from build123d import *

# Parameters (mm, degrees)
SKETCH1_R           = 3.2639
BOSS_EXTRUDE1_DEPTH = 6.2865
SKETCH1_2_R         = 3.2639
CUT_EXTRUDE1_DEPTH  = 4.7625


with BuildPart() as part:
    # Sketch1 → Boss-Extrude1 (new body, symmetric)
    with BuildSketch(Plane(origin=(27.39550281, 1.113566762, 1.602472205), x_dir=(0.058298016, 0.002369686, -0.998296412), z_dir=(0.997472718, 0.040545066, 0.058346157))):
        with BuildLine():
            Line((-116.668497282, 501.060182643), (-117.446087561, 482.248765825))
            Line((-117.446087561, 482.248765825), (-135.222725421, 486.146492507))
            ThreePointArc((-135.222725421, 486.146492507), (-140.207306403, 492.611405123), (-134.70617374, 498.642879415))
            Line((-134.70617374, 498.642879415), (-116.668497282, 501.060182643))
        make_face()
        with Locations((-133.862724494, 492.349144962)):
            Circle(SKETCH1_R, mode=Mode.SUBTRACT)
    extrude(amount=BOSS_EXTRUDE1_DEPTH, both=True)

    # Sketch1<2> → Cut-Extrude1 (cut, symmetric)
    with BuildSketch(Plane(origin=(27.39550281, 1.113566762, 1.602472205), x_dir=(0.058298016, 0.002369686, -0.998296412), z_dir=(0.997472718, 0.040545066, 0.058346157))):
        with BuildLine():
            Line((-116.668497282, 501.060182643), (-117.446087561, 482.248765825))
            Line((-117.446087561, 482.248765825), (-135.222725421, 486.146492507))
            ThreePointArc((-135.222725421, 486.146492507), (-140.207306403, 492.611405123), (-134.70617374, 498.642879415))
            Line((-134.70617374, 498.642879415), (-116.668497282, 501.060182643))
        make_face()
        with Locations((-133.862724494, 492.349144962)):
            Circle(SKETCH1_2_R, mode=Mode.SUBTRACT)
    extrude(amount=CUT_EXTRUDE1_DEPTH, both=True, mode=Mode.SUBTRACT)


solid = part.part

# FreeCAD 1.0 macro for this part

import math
import FreeCAD as App
import Part
import Sketcher
from FreeCAD import Vector
Q = App.Units.Quantity

doc = App.newDocument("Part")
body = doc.addObject("PartDesign::Body", "Body")
body.AllowCompound = True

sketch1 = body.newObject("Sketcher::SketchObject", "Sketch")
sketch1.Placement = App.Placement(Vector(27.395503, 1.113567, 1.602472), App.Rotation(Vector(0.058298016, 0.002369686, -0.998296412), Vector(-0.040614256, 0.999174901, 0), Vector(0.997472718, 0.040545066, 0.058346157), "ZXY"))
sketch1.addGeometry([
    Part.LineSegment(Vector(-117.446088, 482.248766, 0), Vector(-116.668497, 501.060183, 0)),
    Part.LineSegment(Vector(-116.668497, 501.060183, 0), Vector(-134.706174, 498.642879, 0)),
    Part.ArcOfCircle(Part.Circle(Vector(-133.862725, 492.349145, 0), Vector(0, 0, 1), 6.35), math.radians(97.632964), math.radians(257.632964)),
    Part.LineSegment(Vector(-135.222725, 486.146492, 0), Vector(-117.446088, 482.248766, 0)),
    Part.Circle(Vector(-133.862725, 492.349145, 0), Vector(0, 0, 1), 3.2639),
], False)
sketch1.addConstraint([
    Sketcher.Constraint("Coincident", 0, 2, 1, 1),
    Sketcher.Constraint("Tangent", 1, 2, 2, 1),
    Sketcher.Constraint("Tangent", 2, 2, 3, 1),
    Sketcher.Constraint("Coincident", 3, 2, 0, 1),
    Sketcher.Constraint("Coincident", 4, 3, 2, 3),
    Sketcher.Constraint("Equal", 1, 3),
    Sketcher.Constraint("Radius", 2, Q("0.25 in")),
    Sketcher.Constraint("Diameter", 4, Q("0.257 in")),
    Sketcher.Constraint("DistanceX", 2, 2, 2, 3, 1.360001),
    Sketcher.Constraint("Distance", 0, 18.827481),
    Sketcher.Constraint("DistanceY", -1, 1, 1, 2, 498.642879),
    Sketcher.Constraint("DistanceX", 1, 2, 2, 3, 0.843449),
    Sketcher.Constraint("DistanceX", 2, 3, -1, 1, 133.862725),
])
pad1 = body.newObject("PartDesign::Pad", "Pad")
pad1.Profile = sketch1
pad1.Length = Q("0.495 in")
pad1.Midplane = True

sketch2 = body.newObject("Sketcher::SketchObject", "Sketch001")
sketch2.Placement = App.Placement(Vector(27.395503, 1.113567, 1.602472), App.Rotation(Vector(0.058298016, 0.002369686, -0.998296412), Vector(-0.040614256, 0.999174901, 0), Vector(0.997472718, 0.040545066, 0.058346157), "ZXY"))
sketch2.addGeometry([
    Part.LineSegment(Vector(-117.446088, 482.248766, 0), Vector(-116.668497, 501.060183, 0)),
    Part.LineSegment(Vector(-116.668497, 501.060183, 0), Vector(-134.706174, 498.642879, 0)),
    Part.ArcOfCircle(Part.Circle(Vector(-133.862725, 492.349145, 0), Vector(0, 0, 1), 6.35), math.radians(97.632964), math.radians(257.632964)),
    Part.LineSegment(Vector(-135.222725, 486.146492, 0), Vector(-117.446088, 482.248766, 0)),
    Part.Circle(Vector(-133.862725, 492.349145, 0), Vector(0, 0, 1), 3.2639),
], False)
sketch2.addConstraint([
    Sketcher.Constraint("Coincident", 0, 2, 1, 1),
    Sketcher.Constraint("Tangent", 1, 2, 2, 1),
    Sketcher.Constraint("Tangent", 2, 2, 3, 1),
    Sketcher.Constraint("Coincident", 3, 2, 0, 1),
    Sketcher.Constraint("Coincident", 4, 3, 2, 3),
    Sketcher.Constraint("Equal", 1, 3),
    Sketcher.Constraint("Radius", 2, Q("0.25 in")),
    Sketcher.Constraint("Diameter", 4, Q("0.257 in")),
    Sketcher.Constraint("DistanceX", 2, 2, 2, 3, 1.360001),
    Sketcher.Constraint("Distance", 0, 18.827481),
    Sketcher.Constraint("DistanceY", -1, 1, 1, 2, 498.642879),
    Sketcher.Constraint("DistanceX", 1, 2, 2, 3, 0.843449),
    Sketcher.Constraint("DistanceX", 2, 3, -1, 1, 133.862725),
])
pocket1 = body.newObject("PartDesign::Pocket", "Pocket")
pocket1.Profile = sketch2
pocket1.Length = Q("0.375 in")
pocket1.Midplane = True

doc.recompute()
